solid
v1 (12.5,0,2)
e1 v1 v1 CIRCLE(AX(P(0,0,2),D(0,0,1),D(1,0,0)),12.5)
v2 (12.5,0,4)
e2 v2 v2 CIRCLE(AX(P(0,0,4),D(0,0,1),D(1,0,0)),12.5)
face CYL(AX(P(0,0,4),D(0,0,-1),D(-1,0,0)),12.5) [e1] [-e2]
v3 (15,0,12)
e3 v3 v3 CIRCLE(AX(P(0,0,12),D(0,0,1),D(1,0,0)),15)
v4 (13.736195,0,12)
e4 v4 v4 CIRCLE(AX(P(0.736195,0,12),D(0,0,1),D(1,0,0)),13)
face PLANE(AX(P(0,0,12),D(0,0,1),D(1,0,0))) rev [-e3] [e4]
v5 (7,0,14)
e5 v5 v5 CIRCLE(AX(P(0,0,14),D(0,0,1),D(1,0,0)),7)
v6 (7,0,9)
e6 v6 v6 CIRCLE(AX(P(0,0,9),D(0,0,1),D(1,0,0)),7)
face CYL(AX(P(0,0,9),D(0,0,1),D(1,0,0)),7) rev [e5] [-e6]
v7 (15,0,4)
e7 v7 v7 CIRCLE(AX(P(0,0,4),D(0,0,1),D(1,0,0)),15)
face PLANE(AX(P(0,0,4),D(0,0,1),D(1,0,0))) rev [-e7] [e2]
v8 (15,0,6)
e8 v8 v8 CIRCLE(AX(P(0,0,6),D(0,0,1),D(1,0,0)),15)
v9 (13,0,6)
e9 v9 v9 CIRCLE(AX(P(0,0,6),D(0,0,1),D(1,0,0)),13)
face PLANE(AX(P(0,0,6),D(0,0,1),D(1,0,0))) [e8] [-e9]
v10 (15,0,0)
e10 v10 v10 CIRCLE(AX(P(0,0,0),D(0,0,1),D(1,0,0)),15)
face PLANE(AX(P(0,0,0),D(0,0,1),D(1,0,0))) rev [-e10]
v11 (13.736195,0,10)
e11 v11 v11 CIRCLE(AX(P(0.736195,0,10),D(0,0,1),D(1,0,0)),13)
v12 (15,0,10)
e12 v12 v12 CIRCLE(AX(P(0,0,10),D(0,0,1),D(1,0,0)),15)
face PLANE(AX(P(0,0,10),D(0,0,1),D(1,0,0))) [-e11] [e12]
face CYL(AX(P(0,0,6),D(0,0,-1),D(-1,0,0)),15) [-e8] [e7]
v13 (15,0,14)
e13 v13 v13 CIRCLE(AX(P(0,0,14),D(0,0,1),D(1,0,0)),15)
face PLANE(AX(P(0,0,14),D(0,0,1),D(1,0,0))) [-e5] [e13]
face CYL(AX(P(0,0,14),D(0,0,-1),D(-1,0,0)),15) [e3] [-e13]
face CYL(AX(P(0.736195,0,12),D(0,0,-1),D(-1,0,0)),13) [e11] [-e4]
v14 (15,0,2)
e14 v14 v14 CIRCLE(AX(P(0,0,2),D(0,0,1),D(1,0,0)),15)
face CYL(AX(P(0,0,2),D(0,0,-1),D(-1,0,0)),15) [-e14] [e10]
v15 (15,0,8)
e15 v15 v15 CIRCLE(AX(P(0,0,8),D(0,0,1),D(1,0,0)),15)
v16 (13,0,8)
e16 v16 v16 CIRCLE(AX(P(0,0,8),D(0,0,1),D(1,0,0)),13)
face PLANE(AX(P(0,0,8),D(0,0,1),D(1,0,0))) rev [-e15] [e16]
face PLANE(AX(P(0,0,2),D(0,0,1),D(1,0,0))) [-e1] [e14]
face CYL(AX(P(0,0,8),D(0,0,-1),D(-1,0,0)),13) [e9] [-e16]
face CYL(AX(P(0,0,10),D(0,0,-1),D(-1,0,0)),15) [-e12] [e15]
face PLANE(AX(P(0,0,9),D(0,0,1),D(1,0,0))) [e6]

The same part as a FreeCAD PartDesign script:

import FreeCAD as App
import Part
import Sketcher
from FreeCAD import Vector

doc = App.newDocument("Part")
body = doc.addObject("PartDesign::Body", "Body")

sketch1 = body.newObject("Sketcher::SketchObject", "Sketch")
sketch1.AttachmentSupport = (doc.getObject("XY_Plane"), [""])
sketch1.MapMode = "FlatFace"
sketch1.addGeometry(Part.Circle(Vector(0, 0, 0), Vector(0, 0, 1), 15), False)
sketch1.addConstraint(Sketcher.Constraint("Coincident", 0, 3, -1, 1))
sketch1.addConstraint(Sketcher.Constraint("Diameter", 0, 30.0))
pad1 = body.newObject("PartDesign::Pad", "Pad")
pad1.Profile = sketch1
pad1.Length = 2

sketch2 = body.newObject("Sketcher::SketchObject", "Sketch001")
sketch2.AttachmentSupport = (doc.getObject("XY_Plane"), [""])
sketch2.MapMode = "FlatFace"
sketch2.AttachmentOffset = App.Placement(Vector(0, 0, 2), App.Rotation())
sketch2.addGeometry(Part.Circle(Vector(0, 0, 0), Vector(0, 0, 1), 12.5), False)
sketch2.addConstraint(Sketcher.Constraint("Coincident", 0, 3, -1, 1))
sketch2.addConstraint(Sketcher.Constraint("Diameter", 0, 25.0))
pad2 = body.newObject("PartDesign::Pad", "Pad001")
pad2.Profile = sketch2
pad2.Length = 2

sketch3 = body.newObject("Sketcher::SketchObject", "Sketch002")
sketch3.AttachmentSupport = (doc.getObject("XY_Plane"), [""])
sketch3.MapMode = "FlatFace"
sketch3.AttachmentOffset = App.Placement(Vector(0, 0, 4), App.Rotation())
sketch3.addGeometry(Part.Circle(Vector(0, 0, 0), Vector(0, 0, 1), 15), False)
sketch3.addConstraint(Sketcher.Constraint("Coincident", 0, 3, -1, 1))
sketch3.addConstraint(Sketcher.Constraint("Diameter", 0, 30.0))
pad3 = body.newObject("PartDesign::Pad", "Pad002")
pad3.Profile = sketch3
pad3.Length = 2

sketch4 = body.newObject("Sketcher::SketchObject", "Sketch003")
sketch4.AttachmentSupport = (doc.getObject("XY_Plane"), [""])
sketch4.MapMode = "FlatFace"
sketch4.AttachmentOffset = App.Placement(Vector(0, 0, 6), App.Rotation())
sketch4.addGeometry(Part.Circle(Vector(0, 0, 0), Vector(0, 0, 1), 13), False)
sketch4.addConstraint(Sketcher.Constraint("Coincident", 0, 3, -1, 1))
sketch4.addConstraint(Sketcher.Constraint("Diameter", 0, 26.0))
pad4 = body.newObject("PartDesign::Pad", "Pad003")
pad4.Profile = sketch4
pad4.Length = 2

sketch5 = body.newObject("Sketcher::SketchObject", "Sketch004")
sketch5.AttachmentSupport = (doc.getObject("XY_Plane"), [""])
sketch5.MapMode = "FlatFace"
sketch5.AttachmentOffset = App.Placement(Vector(0, 0, 8), App.Rotation())
sketch5.addGeometry(Part.Circle(Vector(0, 0, 0), Vector(0, 0, 1), 15), False)
sketch5.addConstraint(Sketcher.Constraint("Coincident", 0, 3, -1, 1))
sketch5.addConstraint(Sketcher.Constraint("Diameter", 0, 30.0))
pad5 = body.newObject("PartDesign::Pad", "Pad004")
pad5.Profile = sketch5
pad5.Length = 2

sketch6 = body.newObject("Sketcher::SketchObject", "Sketch005")
sketch6.AttachmentSupport = (doc.getObject("XY_Plane"), [""])
sketch6.MapMode = "FlatFace"
sketch6.AttachmentOffset = App.Placement(Vector(0, 0, 10), App.Rotation())
sketch6.addGeometry(Part.Circle(Vector(0.736195, 0, 0), Vector(0, 0, 1), 13), False)
sketch6.addConstraint(Sketcher.Constraint("PointOnObject", 0, 3, -1))
sketch6.addConstraint(Sketcher.Constraint("Diameter", 0, 26.0))
sketch6.addConstraint(Sketcher.Constraint("DistanceX", -1, 1, 0, 3, 0.736195))
pad6 = body.newObject("PartDesign::Pad", "Pad005")
pad6.Profile = sketch6
pad6.Length = 2

sketch7 = body.newObject("Sketcher::SketchObject", "Sketch006")
sketch7.AttachmentSupport = (doc.getObject("XY_Plane"), [""])
sketch7.MapMode = "FlatFace"
sketch7.AttachmentOffset = App.Placement(Vector(0, 0, 12), App.Rotation())
sketch7.addGeometry(Part.Circle(Vector(0, 0, 0), Vector(0, 0, 1), 15), False)
sketch7.addConstraint(Sketcher.Constraint("Coincident", 0, 3, -1, 1))
sketch7.addConstraint(Sketcher.Constraint("Diameter", 0, 30.0))
pad7 = body.newObject("PartDesign::Pad", "Pad006")
pad7.Profile = sketch7
pad7.Length = 2

sketch8 = body.newObject("Sketcher::SketchObject", "Sketch007")
sketch8.AttachmentSupport = (doc.getObject("XY_Plane"), [""])
sketch8.MapMode = "FlatFace"
sketch8.AttachmentOffset = App.Placement(Vector(0, 0, 14), App.Rotation())
sketch8.addGeometry(Part.Circle(Vector(0, 0, 0), Vector(0, 0, 1), 7), False)
sketch8.addConstraint(Sketcher.Constraint("Coincident", 0, 3, -1, 1))
sketch8.addConstraint(Sketcher.Constraint("Diameter", 0, 14.0))
pocket1 = body.newObject("PartDesign::Pocket", "Pocket")
pocket1.Profile = sketch8
pocket1.Length = 5

doc.recompute()
